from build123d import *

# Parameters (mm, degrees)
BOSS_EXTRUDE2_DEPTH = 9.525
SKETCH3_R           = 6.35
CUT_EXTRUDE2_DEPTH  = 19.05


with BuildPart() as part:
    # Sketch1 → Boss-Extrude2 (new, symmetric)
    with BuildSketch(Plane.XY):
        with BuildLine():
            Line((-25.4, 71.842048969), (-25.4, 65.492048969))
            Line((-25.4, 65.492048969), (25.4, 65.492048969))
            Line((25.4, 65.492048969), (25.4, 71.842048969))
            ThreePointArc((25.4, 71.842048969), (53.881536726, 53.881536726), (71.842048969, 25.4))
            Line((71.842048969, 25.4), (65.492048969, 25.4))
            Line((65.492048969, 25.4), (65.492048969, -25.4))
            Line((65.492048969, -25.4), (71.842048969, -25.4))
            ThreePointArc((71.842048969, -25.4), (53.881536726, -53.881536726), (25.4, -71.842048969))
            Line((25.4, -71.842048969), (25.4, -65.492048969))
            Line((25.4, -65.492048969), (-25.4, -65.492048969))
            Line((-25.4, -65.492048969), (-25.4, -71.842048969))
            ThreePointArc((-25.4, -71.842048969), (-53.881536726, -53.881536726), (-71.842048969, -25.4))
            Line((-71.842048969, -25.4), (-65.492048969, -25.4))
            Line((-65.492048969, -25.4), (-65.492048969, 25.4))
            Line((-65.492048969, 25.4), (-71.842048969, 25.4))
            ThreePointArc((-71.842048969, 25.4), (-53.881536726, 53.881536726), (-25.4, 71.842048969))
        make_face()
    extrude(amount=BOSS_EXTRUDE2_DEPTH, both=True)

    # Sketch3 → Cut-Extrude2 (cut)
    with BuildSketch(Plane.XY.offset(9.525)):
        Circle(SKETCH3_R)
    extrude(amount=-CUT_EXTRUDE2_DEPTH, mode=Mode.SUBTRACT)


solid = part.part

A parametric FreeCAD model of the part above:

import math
import FreeCAD as App
import Part
import Sketcher

V = App.Vector
Q = App.Units.Quantity

doc = App.newDocument("Part")
body = doc.addObject("PartDesign::Body", "Body")

# Sketch on XY plane
sketch1 = body.newObject("Sketcher::SketchObject", "Sketch")
sketch1.AttachmentSupport = (doc.getObject("XY_Plane"), [""])
sketch1.MapMode = "FlatFace"
sketch1.addGeometry([
    Part.LineSegment(V(-25, 65, 0), V(-25, 72, 0)),  # 0
    Part.ArcOfCircle(Part.Circle(V(0, 0, 0), V(0, 0, 1), 76), math.radians(109), math.radians(161)),  # 1
    Part.LineSegment(V(-72, 25, 0), V(-65, 25, 0)),  # 2
    Part.LineSegment(V(-65, 25, 0), V(-65, -25, 0)),  # 3
    Part.LineSegment(V(-65, -25, 0), V(-72, -25, 0)),  # 4
    Part.ArcOfCircle(Part.Circle(V(0, 0, 0), V(0, 0, 1), 76), math.radians(-161), math.radians(-109)),  # 5
    Part.LineSegment(V(-25, -72, 0), V(-25, -65, 0)),  # 6
    Part.LineSegment(V(-25, -65, 0), V(25, -65, 0)),  # 7
    Part.LineSegment(V(25, -65, 0), V(25, -72, 0)),  # 8
    Part.ArcOfCircle(Part.Circle(V(0, 0, 0), V(0, 0, 1), 76), math.radians(-71), math.radians(-19)),  # 9
    Part.LineSegment(V(72, -25, 0), V(65, -25, 0)),  # 10
    Part.LineSegment(V(65, -25, 0), V(65, 25, 0)),  # 11
    Part.LineSegment(V(65, 25, 0), V(72, 25, 0)),  # 12
    Part.ArcOfCircle(Part.Circle(V(0, 0, 0), V(0, 0, 1), 76), math.radians(19), math.radians(71)),  # 13
    Part.LineSegment(V(25, 72, 0), V(25, 65, 0)),  # 14
    Part.LineSegment(V(25, 65, 0), V(-25, 65, 0)),  # 15
], False)
sketch1.addConstraint([
    Sketcher.Constraint("Coincident", 0, 2, 1, 1),
    Sketcher.Constraint("Coincident", 1, 2, 2, 1),
    Sketcher.Constraint("Coincident", 2, 2, 3, 1),
    Sketcher.Constraint("Coincident", 3, 2, 4, 1),
    Sketcher.Constraint("Coincident", 4, 2, 5, 1),
    Sketcher.Constraint("Coincident", 5, 2, 6, 1),
    Sketcher.Constraint("Coincident", 6, 2, 7, 1),
    Sketcher.Constraint("Coincident", 7, 2, 8, 1),
    Sketcher.Constraint("Coincident", 8, 2, 9, 1),
    Sketcher.Constraint("Coincident", 9, 2, 10, 1),
    Sketcher.Constraint("Coincident", 10, 2, 11, 1),
    Sketcher.Constraint("Coincident", 11, 2, 12, 1),
    Sketcher.Constraint("Coincident", 12, 2, 13, 1),
    Sketcher.Constraint("Coincident", 13, 2, 14, 1),
    Sketcher.Constraint("Coincident", 14, 2, 15, 1),
    Sketcher.Constraint("Coincident", 15, 2, 0, 1),
    Sketcher.Constraint("Vertical", 0),
    Sketcher.Constraint("Horizontal", 2),
    Sketcher.Constraint("Vertical", 3),
    Sketcher.Constraint("Horizontal", 4),
    Sketcher.Constraint("Vertical", 6),
    Sketcher.Constraint("Horizontal", 7),
    Sketcher.Constraint("Vertical", 8),
    Sketcher.Constraint("Horizontal", 10),
    Sketcher.Constraint("Vertical", 11),
    Sketcher.Constraint("Horizontal", 12),
    Sketcher.Constraint("Vertical", 14),
    Sketcher.Constraint("Horizontal", 15),
    Sketcher.Constraint("Coincident", 1, 3, -1, 1),
    Sketcher.Constraint("Coincident", 5, 3, -1, 1),
    Sketcher.Constraint("Coincident", 9, 3, -1, 1),
    Sketcher.Constraint("Coincident", 13, 3, -1, 1),
    Sketcher.Constraint("Equal", 1, 5),
    Sketcher.Constraint("Equal", 5, 9),
    Sketcher.Constraint("Equal", 9, 13),
    Sketcher.Constraint("Symmetric", 2, 2, 10, 2, -1, 1),
    Sketcher.Constraint("Symmetric", 6, 2, 14, 2, -1, 1),
    Sketcher.Constraint("Horizontal", 5, 2, 8, 2),
    Sketcher.Constraint("Horizontal", 4, 2, 9, 2),
    Sketcher.Constraint("Horizontal", 2, 2, 11, 2),
    Sketcher.Constraint("Horizontal", 0, 2, 13, 2),
    Sketcher.Constraint("Equal", 12, 0),
    Sketcher.Constraint("Equal", 15, 3),
    Sketcher.Constraint("Radius", 1, Q("3 in")),
    Sketcher.Constraint("DistanceX", 7, 1, 7, 2, Q("2 in")),
    Sketcher.Constraint("DistanceX", 2, 1, 2, 2, Q("0.25 in")),
])
pad1 = body.newObject("PartDesign::Pad", "Pad")
pad1.Profile = sketch1
pad1.Length = Q("0.75 in")
pad1.Midplane = True

# Sketch on XY plane
sketch2 = body.newObject("Sketcher::SketchObject", "Sketch001")
sketch2.AttachmentSupport = (doc.getObject("XY_Plane"), [""])
sketch2.MapMode = "FlatFace"
sketch2.AttachmentOffset = App.Placement(V(0, 0, 0.375 * 25.4), App.Rotation())
sketch2.addGeometry(Part.Circle(V(0, 0, 0), V(0, 0, 1), 6), False)
sketch2.addConstraint([
    Sketcher.Constraint("Coincident", 0, 3, -1, 1),
    Sketcher.Constraint("Diameter", 0, Q("0.5 in")),
])
pocket1 = body.newObject("PartDesign::Pocket", "Pocket")
pocket1.Profile = sketch2
pocket1.Length = Q("0.75 in")

doc.recompute()
